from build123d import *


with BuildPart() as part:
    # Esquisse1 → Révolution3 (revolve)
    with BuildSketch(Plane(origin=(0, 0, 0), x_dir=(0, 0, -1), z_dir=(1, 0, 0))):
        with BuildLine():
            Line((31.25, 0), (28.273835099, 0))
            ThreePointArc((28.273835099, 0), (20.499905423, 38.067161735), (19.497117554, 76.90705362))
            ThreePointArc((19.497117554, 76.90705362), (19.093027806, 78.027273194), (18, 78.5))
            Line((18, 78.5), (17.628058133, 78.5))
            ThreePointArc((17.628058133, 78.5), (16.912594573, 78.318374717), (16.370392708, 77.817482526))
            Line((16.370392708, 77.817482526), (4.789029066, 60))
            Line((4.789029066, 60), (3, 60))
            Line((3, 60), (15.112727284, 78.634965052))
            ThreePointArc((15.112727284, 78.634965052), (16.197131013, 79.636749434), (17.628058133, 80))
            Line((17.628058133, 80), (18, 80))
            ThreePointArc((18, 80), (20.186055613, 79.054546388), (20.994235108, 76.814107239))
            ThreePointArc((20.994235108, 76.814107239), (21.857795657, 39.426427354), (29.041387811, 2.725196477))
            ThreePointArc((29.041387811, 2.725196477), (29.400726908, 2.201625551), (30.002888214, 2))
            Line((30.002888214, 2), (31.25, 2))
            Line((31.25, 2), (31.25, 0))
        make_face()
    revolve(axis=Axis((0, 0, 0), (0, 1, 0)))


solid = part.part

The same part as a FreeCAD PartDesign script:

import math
import FreeCAD as App
import Part
import Sketcher

doc = App.newDocument("Part")
body = doc.addObject("PartDesign::Body", "Body")

sketch1 = doc.addObject("Sketcher::SketchObject", "Sketch")
body.addObject(sketch1)
sketch1.AttachmentSupport = (doc.YZ_Plane, [""])
sketch1.MapMode = "FlatFace"
sketch1.addGeometry(Part.LineSegment(App.Vector(0, -28.27, 0), App.Vector(0, -31.25, 0)), False)
sketch1.addGeometry(Part.LineSegment(App.Vector(0, -31.25, 0), App.Vector(2, -31.25, 0)), False)
sketch1.addGeometry(Part.LineSegment(App.Vector(2, -31.25, 0), App.Vector(2, -30, 0)), False)
sketch1.addGeometry(Part.ArcOfCircle(Part.Circle(App.Vector(3, -30, 0), App.Vector(0, 0, 1), 1), math.radians(106), math.radians(180)), False)
sketch1.addGeometry(Part.ArcOfCircle(Part.Circle(App.Vector(63.18, -240.57, 0), App.Vector(0, 0, 1), 220), math.radians(86.45), math.radians(105.95)), False)
sketch1.addGeometry(Part.ArcOfCircle(Part.Circle(App.Vector(77, -18, 0), App.Vector(0, 0, 1), 3), math.radians(-94), math.radians(0)), False)
sketch1.addGeometry(Part.LineSegment(App.Vector(80, -18, 0), App.Vector(80, -17.63, 0)), False)
sketch1.addGeometry(Part.ArcOfCircle(Part.Circle(App.Vector(77, -17.63, 0), App.Vector(0, 0, 1), 3), math.radians(0), math.radians(57)), False)
sketch1.addGeometry(Part.LineSegment(App.Vector(78.63, -15.11, 0), App.Vector(60, -3, 0)), False)
sketch1.addGeometry(Part.LineSegment(App.Vector(60, -3, 0), App.Vector(60, -4.79, 0)), False)
sketch1.addGeometry(Part.LineSegment(App.Vector(60, -4.79, 0), App.Vector(77.82, -16.37, 0)), False)
sketch1.addGeometry(Part.ArcOfCircle(Part.Circle(App.Vector(77, -17.63, 0), App.Vector(0, 0, 1), 1.5), math.radians(0), math.radians(57)), False)
sketch1.addGeometry(Part.LineSegment(App.Vector(78.5, -17.63, 0), App.Vector(78.5, -18, 0)), False)
sketch1.addGeometry(Part.ArcOfCircle(Part.Circle(App.Vector(77, -18, 0), App.Vector(0, 0, 1), 1.5), math.radians(-94), math.radians(0)), False)
sketch1.addGeometry(Part.ArcOfCircle(Part.Circle(App.Vector(63.18, -240.57, 0), App.Vector(0, 0, 1), 221.5), math.radians(86), math.radians(107)), False)
sketch1.addConstraint(Sketcher.Constraint("Coincident", 0, 2, 1, 1))
sketch1.addConstraint(Sketcher.Constraint("Coincident", 1, 2, 2, 1))
sketch1.addConstraint(Sketcher.Constraint("Tangent", 2, 2, 3, 2))
sketch1.addConstraint(Sketcher.Constraint("Tangent", 3, 1, 4, 2))
sketch1.addConstraint(Sketcher.Constraint("Tangent", 4, 1, 5, 1))
sketch1.addConstraint(Sketcher.Constraint("Tangent", 5, 2, 6, 1))
sketch1.addConstraint(Sketcher.Constraint("Tangent", 6, 2, 7, 1))
sketch1.addConstraint(Sketcher.Constraint("Tangent", 7, 2, 8, 1))
sketch1.addConstraint(Sketcher.Constraint("Coincident", 8, 2, 9, 1))
sketch1.addConstraint(Sketcher.Constraint("Coincident", 9, 2, 10, 1))
sketch1.addConstraint(Sketcher.Constraint("Tangent", 10, 2, 11, 2))
sketch1.addConstraint(Sketcher.Constraint("Tangent", 11, 1, 12, 1))
sketch1.addConstraint(Sketcher.Constraint("Tangent", 12, 2, 13, 2))
sketch1.addConstraint(Sketcher.Constraint("Tangent", 13, 1, 14, 1))
sketch1.addConstraint(Sketcher.Constraint("Coincident", 14, 2, 0, 1))
sketch1.addConstraint(Sketcher.Constraint("Vertical", 0))
sketch1.addConstraint(Sketcher.Constraint("Horizontal", 1))
sketch1.addConstraint(Sketcher.Constraint("Vertical", 2))
sketch1.addConstraint(Sketcher.Constraint("Vertical", 6))
sketch1.addConstraint(Sketcher.Constraint("Vertical", 9))
sketch1.addConstraint(Sketcher.Constraint("Vertical", 12))
sketch1.addConstraint(Sketcher.Constraint("Coincident", 11, 3, 7, 3))
sketch1.addConstraint(Sketcher.Constraint("Coincident", 13, 3, 5, 3))
sketch1.addConstraint(Sketcher.Constraint("Coincident", 14, 3, 4, 3))
sketch1.addConstraint(Sketcher.Constraint("Equal", 5, 7))
sketch1.addConstraint(Sketcher.Constraint("PointOnObject", 0, 2, -2))
sketch1.addConstraint(Sketcher.Constraint("Parallel", 8, 10))
sketch1.addConstraint(Sketcher.Constraint("Radius", 3, 1.0))
sketch1.addConstraint(Sketcher.Constraint("Radius", 4, 220.0))
sketch1.addConstraint(Sketcher.Constraint("Radius", 5, 3.0))
sketch1.addConstraint(Sketcher.Constraint("Radius", 11, 1.5))
sketch1.addConstraint(Sketcher.Constraint("DistanceX", 1, 1, 1, 2, 2.0))
sketch1.addConstraint(Sketcher.Constraint("DistanceX", -1, 1, 5, 3, 77.0))
sketch1.addConstraint(Sketcher.Constraint("DistanceY", 5, 3, -1, 1, 18.0))
sketch1.addConstraint(Sketcher.Constraint("DistanceX", -1, 1, 8, 2, 60.0))
sketch1.addConstraint(Sketcher.Constraint("DistanceY", 8, 2, -1, 1, 3.0))
sketch1.addConstraint(Sketcher.Constraint("DistanceY", 0, 2, -1, 1, 31.25))
sketch1.addConstraint(Sketcher.Constraint("DistanceY", 2, 1, 2, 2, 1.247112))
sketch1.addConstraint(Sketcher.Constraint("DistanceY", 6, 1, 6, 2, 0.371942))
revolution = doc.addObject("PartDesign::Revolution", "Revolution")
body.addObject(revolution)
revolution.Profile = sketch1
revolution.ReferenceAxis = (sketch1, ["H_Axis"])
revolution.Angle = 360

doc.recompute()
